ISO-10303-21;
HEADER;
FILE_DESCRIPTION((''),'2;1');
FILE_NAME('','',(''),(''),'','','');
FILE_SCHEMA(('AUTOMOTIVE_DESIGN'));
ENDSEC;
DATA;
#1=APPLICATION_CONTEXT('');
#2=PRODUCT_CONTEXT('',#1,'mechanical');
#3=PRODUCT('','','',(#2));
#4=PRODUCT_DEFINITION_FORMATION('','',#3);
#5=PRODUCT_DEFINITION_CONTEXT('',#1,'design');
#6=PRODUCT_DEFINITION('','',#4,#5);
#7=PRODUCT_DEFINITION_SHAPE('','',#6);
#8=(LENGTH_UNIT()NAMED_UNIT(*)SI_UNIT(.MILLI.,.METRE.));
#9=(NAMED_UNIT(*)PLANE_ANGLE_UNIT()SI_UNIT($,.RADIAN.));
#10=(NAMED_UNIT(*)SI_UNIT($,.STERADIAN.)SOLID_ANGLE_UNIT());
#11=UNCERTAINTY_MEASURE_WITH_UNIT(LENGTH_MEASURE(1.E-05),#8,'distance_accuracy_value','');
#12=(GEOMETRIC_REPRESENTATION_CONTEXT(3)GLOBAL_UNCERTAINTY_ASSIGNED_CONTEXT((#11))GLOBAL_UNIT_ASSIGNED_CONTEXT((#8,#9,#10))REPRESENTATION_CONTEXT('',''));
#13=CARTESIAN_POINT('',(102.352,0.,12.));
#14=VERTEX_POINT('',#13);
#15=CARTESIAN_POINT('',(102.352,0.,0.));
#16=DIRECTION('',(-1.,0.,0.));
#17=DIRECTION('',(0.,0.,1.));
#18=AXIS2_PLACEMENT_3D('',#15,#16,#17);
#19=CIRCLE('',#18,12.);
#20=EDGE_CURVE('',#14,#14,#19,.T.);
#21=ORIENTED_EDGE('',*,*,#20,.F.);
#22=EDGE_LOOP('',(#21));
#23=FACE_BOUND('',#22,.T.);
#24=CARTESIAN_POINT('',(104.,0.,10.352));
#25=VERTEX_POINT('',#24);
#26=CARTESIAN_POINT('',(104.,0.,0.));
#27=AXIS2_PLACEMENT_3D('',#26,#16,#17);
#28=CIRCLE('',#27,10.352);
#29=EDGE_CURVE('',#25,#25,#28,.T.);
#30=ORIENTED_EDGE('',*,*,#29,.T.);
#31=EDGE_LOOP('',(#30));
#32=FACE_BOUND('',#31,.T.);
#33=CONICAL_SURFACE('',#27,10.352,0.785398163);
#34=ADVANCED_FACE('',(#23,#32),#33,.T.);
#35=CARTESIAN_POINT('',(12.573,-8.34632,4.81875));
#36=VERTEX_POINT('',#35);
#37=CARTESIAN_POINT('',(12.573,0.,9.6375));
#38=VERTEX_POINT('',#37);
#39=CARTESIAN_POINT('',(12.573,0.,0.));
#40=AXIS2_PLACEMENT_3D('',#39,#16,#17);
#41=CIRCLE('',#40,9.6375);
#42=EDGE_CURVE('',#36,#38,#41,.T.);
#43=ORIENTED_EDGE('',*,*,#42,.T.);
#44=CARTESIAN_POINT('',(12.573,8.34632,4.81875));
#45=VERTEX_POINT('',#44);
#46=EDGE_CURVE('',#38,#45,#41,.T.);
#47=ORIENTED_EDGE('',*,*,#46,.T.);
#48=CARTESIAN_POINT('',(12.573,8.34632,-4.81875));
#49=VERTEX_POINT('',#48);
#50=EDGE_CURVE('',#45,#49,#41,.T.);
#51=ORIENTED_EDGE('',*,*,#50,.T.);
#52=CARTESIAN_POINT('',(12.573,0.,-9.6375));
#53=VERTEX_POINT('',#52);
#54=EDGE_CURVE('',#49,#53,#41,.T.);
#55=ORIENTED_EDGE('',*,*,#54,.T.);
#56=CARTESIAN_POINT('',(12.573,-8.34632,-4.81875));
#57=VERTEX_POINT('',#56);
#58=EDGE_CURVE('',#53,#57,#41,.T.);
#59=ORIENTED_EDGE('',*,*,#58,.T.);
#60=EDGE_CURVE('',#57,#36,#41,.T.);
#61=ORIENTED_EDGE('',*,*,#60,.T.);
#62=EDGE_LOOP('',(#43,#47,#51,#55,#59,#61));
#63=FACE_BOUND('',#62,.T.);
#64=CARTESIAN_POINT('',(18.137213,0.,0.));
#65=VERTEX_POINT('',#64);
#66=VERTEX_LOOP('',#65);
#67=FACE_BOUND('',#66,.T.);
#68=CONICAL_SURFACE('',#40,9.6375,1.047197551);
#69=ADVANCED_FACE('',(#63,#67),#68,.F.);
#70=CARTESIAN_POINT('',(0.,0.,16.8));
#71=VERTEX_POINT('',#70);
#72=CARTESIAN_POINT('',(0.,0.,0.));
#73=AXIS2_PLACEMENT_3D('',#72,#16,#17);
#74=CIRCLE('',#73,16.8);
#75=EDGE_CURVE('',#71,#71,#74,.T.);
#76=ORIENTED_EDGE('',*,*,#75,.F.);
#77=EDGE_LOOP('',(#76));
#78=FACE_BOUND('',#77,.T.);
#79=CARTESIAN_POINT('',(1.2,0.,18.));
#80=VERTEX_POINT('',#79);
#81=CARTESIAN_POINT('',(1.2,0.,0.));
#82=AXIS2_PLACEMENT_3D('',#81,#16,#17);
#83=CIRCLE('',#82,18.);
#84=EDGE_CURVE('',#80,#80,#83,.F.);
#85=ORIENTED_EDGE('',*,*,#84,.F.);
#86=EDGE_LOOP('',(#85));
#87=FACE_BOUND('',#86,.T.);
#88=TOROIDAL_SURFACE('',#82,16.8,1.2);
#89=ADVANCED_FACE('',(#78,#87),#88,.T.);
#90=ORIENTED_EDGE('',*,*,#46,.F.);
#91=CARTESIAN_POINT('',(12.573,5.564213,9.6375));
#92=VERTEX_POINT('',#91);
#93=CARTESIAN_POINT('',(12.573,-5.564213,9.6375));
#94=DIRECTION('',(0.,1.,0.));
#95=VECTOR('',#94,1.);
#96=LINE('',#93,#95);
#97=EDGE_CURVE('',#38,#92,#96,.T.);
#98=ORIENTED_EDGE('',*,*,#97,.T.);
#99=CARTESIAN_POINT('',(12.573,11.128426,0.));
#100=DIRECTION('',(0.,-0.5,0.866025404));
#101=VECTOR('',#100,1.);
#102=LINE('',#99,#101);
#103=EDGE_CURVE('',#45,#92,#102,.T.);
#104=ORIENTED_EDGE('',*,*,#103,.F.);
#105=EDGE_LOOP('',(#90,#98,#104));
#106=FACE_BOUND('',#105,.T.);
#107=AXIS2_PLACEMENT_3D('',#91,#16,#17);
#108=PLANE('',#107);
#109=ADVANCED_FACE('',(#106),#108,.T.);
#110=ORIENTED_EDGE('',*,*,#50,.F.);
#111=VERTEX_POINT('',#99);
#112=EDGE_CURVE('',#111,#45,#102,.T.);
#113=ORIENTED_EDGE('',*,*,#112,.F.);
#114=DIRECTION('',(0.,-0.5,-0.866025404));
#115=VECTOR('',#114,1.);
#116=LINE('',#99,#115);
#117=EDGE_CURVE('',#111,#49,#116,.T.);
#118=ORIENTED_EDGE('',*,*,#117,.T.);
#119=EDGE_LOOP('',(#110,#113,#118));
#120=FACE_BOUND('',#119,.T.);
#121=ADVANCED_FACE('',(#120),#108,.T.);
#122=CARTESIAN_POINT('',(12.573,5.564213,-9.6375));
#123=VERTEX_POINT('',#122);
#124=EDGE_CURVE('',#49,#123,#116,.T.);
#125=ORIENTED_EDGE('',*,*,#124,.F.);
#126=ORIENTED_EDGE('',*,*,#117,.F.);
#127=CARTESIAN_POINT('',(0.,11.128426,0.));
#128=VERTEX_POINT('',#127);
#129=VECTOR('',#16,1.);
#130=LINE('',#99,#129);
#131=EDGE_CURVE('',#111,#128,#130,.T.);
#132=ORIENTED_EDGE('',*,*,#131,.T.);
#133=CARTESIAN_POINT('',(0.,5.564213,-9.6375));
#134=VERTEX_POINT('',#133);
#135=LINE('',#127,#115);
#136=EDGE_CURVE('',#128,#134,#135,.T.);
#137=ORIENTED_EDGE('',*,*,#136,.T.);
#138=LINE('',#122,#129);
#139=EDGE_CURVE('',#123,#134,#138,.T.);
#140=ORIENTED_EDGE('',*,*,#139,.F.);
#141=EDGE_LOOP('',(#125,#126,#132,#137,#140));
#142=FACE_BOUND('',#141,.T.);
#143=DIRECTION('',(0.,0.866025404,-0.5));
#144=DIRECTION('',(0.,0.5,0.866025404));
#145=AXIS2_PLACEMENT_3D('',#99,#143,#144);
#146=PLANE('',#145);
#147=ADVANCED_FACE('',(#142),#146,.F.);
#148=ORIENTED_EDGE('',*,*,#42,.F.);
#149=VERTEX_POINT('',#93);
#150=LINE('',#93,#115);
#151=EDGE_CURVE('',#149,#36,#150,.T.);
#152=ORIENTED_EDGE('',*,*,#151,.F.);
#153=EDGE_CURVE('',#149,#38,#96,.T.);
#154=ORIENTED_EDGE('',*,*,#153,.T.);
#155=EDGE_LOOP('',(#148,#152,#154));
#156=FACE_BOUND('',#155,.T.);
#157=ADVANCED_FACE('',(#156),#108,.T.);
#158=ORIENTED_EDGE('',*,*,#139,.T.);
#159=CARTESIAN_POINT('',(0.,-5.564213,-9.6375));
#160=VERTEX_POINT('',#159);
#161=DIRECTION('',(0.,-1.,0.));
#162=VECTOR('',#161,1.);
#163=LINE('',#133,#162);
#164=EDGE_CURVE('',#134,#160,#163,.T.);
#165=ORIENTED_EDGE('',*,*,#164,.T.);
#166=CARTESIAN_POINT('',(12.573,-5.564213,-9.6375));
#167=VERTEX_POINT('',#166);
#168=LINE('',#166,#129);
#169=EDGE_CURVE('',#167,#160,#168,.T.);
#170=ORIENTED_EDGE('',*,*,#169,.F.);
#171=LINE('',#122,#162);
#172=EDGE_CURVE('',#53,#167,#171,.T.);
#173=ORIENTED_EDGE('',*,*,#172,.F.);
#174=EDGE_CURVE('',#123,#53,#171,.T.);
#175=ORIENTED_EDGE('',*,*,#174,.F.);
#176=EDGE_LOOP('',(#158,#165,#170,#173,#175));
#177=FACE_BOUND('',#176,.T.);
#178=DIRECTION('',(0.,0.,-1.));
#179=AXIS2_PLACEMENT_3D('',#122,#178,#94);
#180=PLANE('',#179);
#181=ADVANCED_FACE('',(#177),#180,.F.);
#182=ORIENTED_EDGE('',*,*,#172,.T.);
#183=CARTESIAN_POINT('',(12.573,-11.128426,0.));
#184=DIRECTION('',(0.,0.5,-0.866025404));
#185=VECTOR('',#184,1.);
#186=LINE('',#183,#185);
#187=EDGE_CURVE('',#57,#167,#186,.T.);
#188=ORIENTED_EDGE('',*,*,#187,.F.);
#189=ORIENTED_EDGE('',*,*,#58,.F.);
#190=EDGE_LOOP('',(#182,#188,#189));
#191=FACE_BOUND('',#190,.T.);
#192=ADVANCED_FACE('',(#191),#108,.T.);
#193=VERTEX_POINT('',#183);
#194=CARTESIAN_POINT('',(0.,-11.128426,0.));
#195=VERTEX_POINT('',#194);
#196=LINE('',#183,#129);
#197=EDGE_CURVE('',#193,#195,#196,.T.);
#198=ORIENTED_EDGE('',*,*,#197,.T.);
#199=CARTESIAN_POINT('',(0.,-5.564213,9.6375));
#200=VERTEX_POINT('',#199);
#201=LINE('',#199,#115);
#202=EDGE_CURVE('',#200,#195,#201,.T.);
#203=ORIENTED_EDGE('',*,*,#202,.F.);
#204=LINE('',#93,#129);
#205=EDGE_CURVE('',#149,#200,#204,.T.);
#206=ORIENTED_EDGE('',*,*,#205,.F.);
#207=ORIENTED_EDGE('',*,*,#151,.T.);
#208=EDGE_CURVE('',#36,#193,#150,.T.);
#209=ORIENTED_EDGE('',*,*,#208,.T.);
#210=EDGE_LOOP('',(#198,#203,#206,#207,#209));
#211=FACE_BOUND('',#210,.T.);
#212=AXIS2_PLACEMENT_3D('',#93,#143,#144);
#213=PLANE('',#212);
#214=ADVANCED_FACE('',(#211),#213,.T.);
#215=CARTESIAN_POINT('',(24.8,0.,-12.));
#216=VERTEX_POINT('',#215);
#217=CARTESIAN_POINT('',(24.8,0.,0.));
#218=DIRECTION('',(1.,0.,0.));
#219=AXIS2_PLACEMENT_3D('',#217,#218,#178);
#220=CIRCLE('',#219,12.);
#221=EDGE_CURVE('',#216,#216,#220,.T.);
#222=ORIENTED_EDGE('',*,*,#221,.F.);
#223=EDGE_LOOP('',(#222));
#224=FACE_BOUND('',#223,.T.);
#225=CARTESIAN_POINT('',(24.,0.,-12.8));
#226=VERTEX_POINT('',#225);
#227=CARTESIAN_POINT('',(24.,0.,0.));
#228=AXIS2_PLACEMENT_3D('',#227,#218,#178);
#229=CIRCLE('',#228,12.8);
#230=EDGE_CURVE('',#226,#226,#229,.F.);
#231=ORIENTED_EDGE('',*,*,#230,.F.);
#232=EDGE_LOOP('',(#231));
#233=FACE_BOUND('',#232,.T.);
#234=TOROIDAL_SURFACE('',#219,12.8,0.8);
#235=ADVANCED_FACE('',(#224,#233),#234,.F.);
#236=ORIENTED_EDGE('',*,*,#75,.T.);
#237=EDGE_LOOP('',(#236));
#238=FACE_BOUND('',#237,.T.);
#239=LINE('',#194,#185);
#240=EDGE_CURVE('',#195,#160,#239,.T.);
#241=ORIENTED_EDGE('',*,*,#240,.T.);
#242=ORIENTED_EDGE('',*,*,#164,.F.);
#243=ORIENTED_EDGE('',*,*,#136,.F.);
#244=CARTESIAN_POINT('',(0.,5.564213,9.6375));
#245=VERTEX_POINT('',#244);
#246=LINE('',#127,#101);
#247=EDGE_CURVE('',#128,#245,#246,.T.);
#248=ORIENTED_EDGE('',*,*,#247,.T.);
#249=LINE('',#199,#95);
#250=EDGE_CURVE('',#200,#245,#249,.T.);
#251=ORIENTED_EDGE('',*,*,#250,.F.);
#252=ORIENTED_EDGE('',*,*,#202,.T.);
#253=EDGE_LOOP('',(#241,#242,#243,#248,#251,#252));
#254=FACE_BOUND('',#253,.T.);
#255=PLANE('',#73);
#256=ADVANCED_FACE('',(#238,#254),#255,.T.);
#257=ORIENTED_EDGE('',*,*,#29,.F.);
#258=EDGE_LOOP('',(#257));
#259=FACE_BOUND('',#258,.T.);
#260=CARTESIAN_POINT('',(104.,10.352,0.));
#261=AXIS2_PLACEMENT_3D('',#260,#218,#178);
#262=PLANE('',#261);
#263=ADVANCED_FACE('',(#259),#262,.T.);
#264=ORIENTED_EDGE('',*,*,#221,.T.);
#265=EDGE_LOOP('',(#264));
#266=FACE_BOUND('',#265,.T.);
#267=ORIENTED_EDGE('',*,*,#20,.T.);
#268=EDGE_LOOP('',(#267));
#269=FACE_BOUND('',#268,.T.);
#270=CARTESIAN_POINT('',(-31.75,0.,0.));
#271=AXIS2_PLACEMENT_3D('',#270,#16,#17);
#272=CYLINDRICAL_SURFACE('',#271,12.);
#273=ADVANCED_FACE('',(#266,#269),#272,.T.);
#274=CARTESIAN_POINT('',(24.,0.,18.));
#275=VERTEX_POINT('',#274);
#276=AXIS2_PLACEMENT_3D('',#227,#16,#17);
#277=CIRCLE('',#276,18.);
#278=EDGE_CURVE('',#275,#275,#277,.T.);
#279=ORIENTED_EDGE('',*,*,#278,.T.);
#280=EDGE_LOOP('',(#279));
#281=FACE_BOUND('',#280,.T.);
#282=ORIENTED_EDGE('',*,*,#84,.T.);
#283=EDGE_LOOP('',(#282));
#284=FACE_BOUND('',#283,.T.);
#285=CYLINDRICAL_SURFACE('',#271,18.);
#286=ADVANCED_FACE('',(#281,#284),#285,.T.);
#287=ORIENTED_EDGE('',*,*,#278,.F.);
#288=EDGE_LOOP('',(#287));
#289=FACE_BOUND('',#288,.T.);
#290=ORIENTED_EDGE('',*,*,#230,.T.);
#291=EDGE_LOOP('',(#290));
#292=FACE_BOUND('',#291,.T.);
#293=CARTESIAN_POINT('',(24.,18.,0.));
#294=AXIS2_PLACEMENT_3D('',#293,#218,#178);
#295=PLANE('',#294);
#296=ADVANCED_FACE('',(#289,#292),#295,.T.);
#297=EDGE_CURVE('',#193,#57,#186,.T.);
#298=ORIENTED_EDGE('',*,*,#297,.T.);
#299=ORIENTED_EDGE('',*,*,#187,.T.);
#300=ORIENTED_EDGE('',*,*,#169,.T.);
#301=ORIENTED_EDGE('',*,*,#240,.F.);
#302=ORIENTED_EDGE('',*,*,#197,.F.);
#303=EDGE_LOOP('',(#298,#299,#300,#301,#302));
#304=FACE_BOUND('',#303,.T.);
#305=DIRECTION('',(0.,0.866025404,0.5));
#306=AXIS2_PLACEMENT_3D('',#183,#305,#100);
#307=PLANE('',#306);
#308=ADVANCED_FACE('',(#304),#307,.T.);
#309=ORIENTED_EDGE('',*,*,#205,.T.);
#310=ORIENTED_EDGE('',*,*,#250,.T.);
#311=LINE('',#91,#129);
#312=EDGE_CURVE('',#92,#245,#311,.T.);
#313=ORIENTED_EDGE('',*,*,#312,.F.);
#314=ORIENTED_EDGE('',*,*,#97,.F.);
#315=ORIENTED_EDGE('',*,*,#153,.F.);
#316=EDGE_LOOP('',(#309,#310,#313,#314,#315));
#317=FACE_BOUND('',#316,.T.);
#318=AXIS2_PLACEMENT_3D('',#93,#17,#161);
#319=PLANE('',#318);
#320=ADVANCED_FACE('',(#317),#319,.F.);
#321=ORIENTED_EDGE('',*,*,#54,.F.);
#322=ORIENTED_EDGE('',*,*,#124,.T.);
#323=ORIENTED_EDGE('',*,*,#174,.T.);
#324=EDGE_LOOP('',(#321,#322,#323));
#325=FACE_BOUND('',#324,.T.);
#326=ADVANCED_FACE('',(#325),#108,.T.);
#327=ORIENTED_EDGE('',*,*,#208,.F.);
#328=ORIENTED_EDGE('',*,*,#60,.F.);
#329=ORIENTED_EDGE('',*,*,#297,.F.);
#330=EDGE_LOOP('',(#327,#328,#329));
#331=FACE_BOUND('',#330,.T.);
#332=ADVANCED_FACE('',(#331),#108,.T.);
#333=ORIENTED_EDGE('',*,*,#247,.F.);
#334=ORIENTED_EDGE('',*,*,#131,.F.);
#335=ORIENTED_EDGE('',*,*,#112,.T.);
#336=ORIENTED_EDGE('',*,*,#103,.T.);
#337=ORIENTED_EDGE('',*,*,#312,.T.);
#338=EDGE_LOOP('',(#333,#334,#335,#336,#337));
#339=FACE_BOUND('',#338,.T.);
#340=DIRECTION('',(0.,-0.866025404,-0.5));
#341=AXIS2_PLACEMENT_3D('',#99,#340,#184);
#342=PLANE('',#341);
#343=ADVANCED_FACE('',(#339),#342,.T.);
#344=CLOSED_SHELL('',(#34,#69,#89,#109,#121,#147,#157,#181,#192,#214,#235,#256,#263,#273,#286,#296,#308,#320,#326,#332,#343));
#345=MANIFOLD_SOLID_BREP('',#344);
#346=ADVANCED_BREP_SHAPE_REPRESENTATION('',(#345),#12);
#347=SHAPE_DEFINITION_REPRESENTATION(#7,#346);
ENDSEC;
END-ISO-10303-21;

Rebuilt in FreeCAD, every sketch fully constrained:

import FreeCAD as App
import Part
import Sketcher
Q = App.Units.Quantity


def edges_at(feature, points):
    """Names of the edges that pass closest to the given points."""
    edges = feature.Shape.Edges
    near = lambda p: min(range(len(edges)), key=lambda i: edges[i].distToShape(Part.Vertex(*p))[0])
    return sorted({f"Edge{near(p) + 1}" for p in points})

doc = App.newDocument("Part")
body = doc.addObject("PartDesign::Body", "Body")

# Sketch on XY plane
sketch1 = body.newObject("Sketcher::SketchObject", "Sketch")
sketch1.AttachmentSupport = (doc.getObject("XY_Plane"), [""])
sketch1.MapMode = "FlatFace"
sketch1.addGeometry([
    Part.LineSegment(App.Vector(0, 18, 0), App.Vector(0, 0, 0)),  # 0
    Part.LineSegment(App.Vector(0, 0, 0), App.Vector(104, 0, 0)),  # 1
    Part.LineSegment(App.Vector(104, 0, 0), App.Vector(104, 10.4, 0)),  # 2
    Part.LineSegment(App.Vector(104, 10.4, 0), App.Vector(102.4, 12, 0)),  # 3
    Part.LineSegment(App.Vector(102.4, 12, 0), App.Vector(24, 12, 0)),  # 4
    Part.LineSegment(App.Vector(24, 12, 0), App.Vector(24, 18, 0)),  # 5
    Part.LineSegment(App.Vector(24, 18, 0), App.Vector(0, 18, 0)),  # 6
], False)
sketch1.addConstraint([
    Sketcher.Constraint("Coincident", 0, 2, 1, 1),
    Sketcher.Constraint("Coincident", 1, 2, 2, 1),
    Sketcher.Constraint("Coincident", 2, 2, 3, 1),
    Sketcher.Constraint("Coincident", 3, 2, 4, 1),
    Sketcher.Constraint("Coincident", 4, 2, 5, 1),
    Sketcher.Constraint("Coincident", 5, 2, 6, 1),
    Sketcher.Constraint("Coincident", 6, 2, 0, 1),
    Sketcher.Constraint("Vertical", 0),
    Sketcher.Constraint("Horizontal", 1),
    Sketcher.Constraint("Vertical", 2),
    Sketcher.Constraint("Horizontal", 4),
    Sketcher.Constraint("Vertical", 5),
    Sketcher.Constraint("Horizontal", 6),
    Sketcher.Constraint("Coincident", 0, 2, -1, 1),
    Sketcher.Constraint("DistanceX", 1, 1, 1, 2, Q("104 mm")),
    Sketcher.Constraint("DistanceX", 6, 2, 6, 1, Q("24 mm")),
    Sketcher.Constraint("DistanceY", 0, 2, 0, 1, Q("18 mm")),
    Sketcher.Constraint("DistanceY", 5, 1, 5, 2, Q("6 mm")),
    Sketcher.Constraint("Angle", 3, Q("135 deg")),
    Sketcher.Constraint("DistanceX", 4, 2, 4, 1, Q("78.352 mm")),
])
revolution = body.newObject("PartDesign::Revolution", "Revolution")
revolution.Profile = sketch1
revolution.ReferenceAxis = (sketch1, ["H_Axis"])
revolution.Angle = 360
doc.recompute()

fillet = body.newObject("PartDesign::Fillet", "Fillet")
fillet.Base = (revolution, edges_at(revolution, [(24, -12, 0)]))
fillet.Radius = 0.8
doc.recompute()

fillet2 = body.newObject("PartDesign::Fillet", "Fillet001")
fillet2.Base = (fillet, edges_at(fillet, [(0, -18, 0)]))
fillet2.Radius = 1.2

# Sketch on XY plane
sketch2 = body.newObject("Sketcher::SketchObject", "Sketch001")
sketch2.AttachmentSupport = (doc.getObject("XY_Plane"), [""])
sketch2.MapMode = "FlatFace"
sketch2.addGeometry([
    Part.LineSegment(App.Vector(13, 10, 0), App.Vector(0, 10, 0)),
    Part.LineSegment(App.Vector(0, 10, 0), App.Vector(0, 0, 0)),
    Part.LineSegment(App.Vector(0, 0, 0), App.Vector(18, 0, 0)),
    Part.LineSegment(App.Vector(18, 0, 0), App.Vector(13, 10, 0)),
], False)
sketch2.addConstraint([
    Sketcher.Constraint("Coincident", 0, 2, 1, 1),
    Sketcher.Constraint("Coincident", 1, 2, 2, 1),
    Sketcher.Constraint("Coincident", 2, 2, 3, 1),
    Sketcher.Constraint("Coincident", 3, 2, 0, 1),
    Sketcher.Constraint("Horizontal", 0),
    Sketcher.Constraint("Vertical", 1),
    Sketcher.Constraint("Horizontal", 2),
    Sketcher.Constraint("Coincident", 1, 2, -1, 1),
    Sketcher.Constraint("Angle", 3, Q("120 deg")),
    Sketcher.Constraint("DistanceX", 0, 2, 0, 1, Q("12.573 mm")),
    Sketcher.Constraint("DistanceY", 1, 2, 1, 1, Q("9.6375 mm")),
])
groove = body.newObject("PartDesign::Groove", "Groove")
groove.Profile = sketch2
groove.ReferenceAxis = (sketch2, ["H_Axis"])
groove.Angle = 360

# Sketch on YZ plane
sketch3 = body.newObject("Sketcher::SketchObject", "Sketch002")
sketch3.AttachmentSupport = (doc.getObject("YZ_Plane"), [""])
sketch3.MapMode = "FlatFace"
sketch3.addGeometry([
    Part.LineSegment(App.Vector(11, 0, 0), App.Vector(6, -10, 0)),  # 0
    Part.LineSegment(App.Vector(6, -10, 0), App.Vector(-6, -10, 0)),  # 1
    Part.LineSegment(App.Vector(-6, -10, 0), App.Vector(-11, 0, 0)),  # 2
    Part.LineSegment(App.Vector(-11, 0, 0), App.Vector(-6, 10, 0)),  # 3
    Part.LineSegment(App.Vector(-6, 10, 0), App.Vector(6, 10, 0)),  # 4
    Part.LineSegment(App.Vector(6, 10, 0), App.Vector(11, 0, 0)),  # 5
], False)
sketch3.addConstraint([
    Sketcher.Constraint("Coincident", 0, 2, 1, 1),
    Sketcher.Constraint("Coincident", 1, 2, 2, 1),
    Sketcher.Constraint("Coincident", 2, 2, 3, 1),
    Sketcher.Constraint("Coincident", 3, 2, 4, 1),
    Sketcher.Constraint("Coincident", 4, 2, 5, 1),
    Sketcher.Constraint("Coincident", 5, 2, 0, 1),
    Sketcher.Constraint("Horizontal", 1),
    Sketcher.Constraint("Horizontal", 4),
    Sketcher.Constraint("Symmetric", 0, 2, 3, 2, -1, 1),
    Sketcher.Constraint("Symmetric", 2, 2, 5, 2, -1, 1),
    Sketcher.Constraint("PointOnObject", 2, 2, -1),
    Sketcher.Constraint("Parallel", 2, 5),
    Sketcher.Constraint("Vertical", 1, 2, 3, 2),
    Sketcher.Constraint("Angle", 0, Q("-120 deg")),
    Sketcher.Constraint("DistanceY", 1, 2, 3, 2, Q("19.275 mm")),
    Sketcher.Constraint("DistanceX", 1, 2, 1, 1, Q("11.128426 mm")),
])
pocket1 = body.newObject("PartDesign::Pocket", "Pocket")
pocket1.Profile = sketch3
pocket1.Length = 12.573
pocket1.Reversed = True

doc.recompute()
